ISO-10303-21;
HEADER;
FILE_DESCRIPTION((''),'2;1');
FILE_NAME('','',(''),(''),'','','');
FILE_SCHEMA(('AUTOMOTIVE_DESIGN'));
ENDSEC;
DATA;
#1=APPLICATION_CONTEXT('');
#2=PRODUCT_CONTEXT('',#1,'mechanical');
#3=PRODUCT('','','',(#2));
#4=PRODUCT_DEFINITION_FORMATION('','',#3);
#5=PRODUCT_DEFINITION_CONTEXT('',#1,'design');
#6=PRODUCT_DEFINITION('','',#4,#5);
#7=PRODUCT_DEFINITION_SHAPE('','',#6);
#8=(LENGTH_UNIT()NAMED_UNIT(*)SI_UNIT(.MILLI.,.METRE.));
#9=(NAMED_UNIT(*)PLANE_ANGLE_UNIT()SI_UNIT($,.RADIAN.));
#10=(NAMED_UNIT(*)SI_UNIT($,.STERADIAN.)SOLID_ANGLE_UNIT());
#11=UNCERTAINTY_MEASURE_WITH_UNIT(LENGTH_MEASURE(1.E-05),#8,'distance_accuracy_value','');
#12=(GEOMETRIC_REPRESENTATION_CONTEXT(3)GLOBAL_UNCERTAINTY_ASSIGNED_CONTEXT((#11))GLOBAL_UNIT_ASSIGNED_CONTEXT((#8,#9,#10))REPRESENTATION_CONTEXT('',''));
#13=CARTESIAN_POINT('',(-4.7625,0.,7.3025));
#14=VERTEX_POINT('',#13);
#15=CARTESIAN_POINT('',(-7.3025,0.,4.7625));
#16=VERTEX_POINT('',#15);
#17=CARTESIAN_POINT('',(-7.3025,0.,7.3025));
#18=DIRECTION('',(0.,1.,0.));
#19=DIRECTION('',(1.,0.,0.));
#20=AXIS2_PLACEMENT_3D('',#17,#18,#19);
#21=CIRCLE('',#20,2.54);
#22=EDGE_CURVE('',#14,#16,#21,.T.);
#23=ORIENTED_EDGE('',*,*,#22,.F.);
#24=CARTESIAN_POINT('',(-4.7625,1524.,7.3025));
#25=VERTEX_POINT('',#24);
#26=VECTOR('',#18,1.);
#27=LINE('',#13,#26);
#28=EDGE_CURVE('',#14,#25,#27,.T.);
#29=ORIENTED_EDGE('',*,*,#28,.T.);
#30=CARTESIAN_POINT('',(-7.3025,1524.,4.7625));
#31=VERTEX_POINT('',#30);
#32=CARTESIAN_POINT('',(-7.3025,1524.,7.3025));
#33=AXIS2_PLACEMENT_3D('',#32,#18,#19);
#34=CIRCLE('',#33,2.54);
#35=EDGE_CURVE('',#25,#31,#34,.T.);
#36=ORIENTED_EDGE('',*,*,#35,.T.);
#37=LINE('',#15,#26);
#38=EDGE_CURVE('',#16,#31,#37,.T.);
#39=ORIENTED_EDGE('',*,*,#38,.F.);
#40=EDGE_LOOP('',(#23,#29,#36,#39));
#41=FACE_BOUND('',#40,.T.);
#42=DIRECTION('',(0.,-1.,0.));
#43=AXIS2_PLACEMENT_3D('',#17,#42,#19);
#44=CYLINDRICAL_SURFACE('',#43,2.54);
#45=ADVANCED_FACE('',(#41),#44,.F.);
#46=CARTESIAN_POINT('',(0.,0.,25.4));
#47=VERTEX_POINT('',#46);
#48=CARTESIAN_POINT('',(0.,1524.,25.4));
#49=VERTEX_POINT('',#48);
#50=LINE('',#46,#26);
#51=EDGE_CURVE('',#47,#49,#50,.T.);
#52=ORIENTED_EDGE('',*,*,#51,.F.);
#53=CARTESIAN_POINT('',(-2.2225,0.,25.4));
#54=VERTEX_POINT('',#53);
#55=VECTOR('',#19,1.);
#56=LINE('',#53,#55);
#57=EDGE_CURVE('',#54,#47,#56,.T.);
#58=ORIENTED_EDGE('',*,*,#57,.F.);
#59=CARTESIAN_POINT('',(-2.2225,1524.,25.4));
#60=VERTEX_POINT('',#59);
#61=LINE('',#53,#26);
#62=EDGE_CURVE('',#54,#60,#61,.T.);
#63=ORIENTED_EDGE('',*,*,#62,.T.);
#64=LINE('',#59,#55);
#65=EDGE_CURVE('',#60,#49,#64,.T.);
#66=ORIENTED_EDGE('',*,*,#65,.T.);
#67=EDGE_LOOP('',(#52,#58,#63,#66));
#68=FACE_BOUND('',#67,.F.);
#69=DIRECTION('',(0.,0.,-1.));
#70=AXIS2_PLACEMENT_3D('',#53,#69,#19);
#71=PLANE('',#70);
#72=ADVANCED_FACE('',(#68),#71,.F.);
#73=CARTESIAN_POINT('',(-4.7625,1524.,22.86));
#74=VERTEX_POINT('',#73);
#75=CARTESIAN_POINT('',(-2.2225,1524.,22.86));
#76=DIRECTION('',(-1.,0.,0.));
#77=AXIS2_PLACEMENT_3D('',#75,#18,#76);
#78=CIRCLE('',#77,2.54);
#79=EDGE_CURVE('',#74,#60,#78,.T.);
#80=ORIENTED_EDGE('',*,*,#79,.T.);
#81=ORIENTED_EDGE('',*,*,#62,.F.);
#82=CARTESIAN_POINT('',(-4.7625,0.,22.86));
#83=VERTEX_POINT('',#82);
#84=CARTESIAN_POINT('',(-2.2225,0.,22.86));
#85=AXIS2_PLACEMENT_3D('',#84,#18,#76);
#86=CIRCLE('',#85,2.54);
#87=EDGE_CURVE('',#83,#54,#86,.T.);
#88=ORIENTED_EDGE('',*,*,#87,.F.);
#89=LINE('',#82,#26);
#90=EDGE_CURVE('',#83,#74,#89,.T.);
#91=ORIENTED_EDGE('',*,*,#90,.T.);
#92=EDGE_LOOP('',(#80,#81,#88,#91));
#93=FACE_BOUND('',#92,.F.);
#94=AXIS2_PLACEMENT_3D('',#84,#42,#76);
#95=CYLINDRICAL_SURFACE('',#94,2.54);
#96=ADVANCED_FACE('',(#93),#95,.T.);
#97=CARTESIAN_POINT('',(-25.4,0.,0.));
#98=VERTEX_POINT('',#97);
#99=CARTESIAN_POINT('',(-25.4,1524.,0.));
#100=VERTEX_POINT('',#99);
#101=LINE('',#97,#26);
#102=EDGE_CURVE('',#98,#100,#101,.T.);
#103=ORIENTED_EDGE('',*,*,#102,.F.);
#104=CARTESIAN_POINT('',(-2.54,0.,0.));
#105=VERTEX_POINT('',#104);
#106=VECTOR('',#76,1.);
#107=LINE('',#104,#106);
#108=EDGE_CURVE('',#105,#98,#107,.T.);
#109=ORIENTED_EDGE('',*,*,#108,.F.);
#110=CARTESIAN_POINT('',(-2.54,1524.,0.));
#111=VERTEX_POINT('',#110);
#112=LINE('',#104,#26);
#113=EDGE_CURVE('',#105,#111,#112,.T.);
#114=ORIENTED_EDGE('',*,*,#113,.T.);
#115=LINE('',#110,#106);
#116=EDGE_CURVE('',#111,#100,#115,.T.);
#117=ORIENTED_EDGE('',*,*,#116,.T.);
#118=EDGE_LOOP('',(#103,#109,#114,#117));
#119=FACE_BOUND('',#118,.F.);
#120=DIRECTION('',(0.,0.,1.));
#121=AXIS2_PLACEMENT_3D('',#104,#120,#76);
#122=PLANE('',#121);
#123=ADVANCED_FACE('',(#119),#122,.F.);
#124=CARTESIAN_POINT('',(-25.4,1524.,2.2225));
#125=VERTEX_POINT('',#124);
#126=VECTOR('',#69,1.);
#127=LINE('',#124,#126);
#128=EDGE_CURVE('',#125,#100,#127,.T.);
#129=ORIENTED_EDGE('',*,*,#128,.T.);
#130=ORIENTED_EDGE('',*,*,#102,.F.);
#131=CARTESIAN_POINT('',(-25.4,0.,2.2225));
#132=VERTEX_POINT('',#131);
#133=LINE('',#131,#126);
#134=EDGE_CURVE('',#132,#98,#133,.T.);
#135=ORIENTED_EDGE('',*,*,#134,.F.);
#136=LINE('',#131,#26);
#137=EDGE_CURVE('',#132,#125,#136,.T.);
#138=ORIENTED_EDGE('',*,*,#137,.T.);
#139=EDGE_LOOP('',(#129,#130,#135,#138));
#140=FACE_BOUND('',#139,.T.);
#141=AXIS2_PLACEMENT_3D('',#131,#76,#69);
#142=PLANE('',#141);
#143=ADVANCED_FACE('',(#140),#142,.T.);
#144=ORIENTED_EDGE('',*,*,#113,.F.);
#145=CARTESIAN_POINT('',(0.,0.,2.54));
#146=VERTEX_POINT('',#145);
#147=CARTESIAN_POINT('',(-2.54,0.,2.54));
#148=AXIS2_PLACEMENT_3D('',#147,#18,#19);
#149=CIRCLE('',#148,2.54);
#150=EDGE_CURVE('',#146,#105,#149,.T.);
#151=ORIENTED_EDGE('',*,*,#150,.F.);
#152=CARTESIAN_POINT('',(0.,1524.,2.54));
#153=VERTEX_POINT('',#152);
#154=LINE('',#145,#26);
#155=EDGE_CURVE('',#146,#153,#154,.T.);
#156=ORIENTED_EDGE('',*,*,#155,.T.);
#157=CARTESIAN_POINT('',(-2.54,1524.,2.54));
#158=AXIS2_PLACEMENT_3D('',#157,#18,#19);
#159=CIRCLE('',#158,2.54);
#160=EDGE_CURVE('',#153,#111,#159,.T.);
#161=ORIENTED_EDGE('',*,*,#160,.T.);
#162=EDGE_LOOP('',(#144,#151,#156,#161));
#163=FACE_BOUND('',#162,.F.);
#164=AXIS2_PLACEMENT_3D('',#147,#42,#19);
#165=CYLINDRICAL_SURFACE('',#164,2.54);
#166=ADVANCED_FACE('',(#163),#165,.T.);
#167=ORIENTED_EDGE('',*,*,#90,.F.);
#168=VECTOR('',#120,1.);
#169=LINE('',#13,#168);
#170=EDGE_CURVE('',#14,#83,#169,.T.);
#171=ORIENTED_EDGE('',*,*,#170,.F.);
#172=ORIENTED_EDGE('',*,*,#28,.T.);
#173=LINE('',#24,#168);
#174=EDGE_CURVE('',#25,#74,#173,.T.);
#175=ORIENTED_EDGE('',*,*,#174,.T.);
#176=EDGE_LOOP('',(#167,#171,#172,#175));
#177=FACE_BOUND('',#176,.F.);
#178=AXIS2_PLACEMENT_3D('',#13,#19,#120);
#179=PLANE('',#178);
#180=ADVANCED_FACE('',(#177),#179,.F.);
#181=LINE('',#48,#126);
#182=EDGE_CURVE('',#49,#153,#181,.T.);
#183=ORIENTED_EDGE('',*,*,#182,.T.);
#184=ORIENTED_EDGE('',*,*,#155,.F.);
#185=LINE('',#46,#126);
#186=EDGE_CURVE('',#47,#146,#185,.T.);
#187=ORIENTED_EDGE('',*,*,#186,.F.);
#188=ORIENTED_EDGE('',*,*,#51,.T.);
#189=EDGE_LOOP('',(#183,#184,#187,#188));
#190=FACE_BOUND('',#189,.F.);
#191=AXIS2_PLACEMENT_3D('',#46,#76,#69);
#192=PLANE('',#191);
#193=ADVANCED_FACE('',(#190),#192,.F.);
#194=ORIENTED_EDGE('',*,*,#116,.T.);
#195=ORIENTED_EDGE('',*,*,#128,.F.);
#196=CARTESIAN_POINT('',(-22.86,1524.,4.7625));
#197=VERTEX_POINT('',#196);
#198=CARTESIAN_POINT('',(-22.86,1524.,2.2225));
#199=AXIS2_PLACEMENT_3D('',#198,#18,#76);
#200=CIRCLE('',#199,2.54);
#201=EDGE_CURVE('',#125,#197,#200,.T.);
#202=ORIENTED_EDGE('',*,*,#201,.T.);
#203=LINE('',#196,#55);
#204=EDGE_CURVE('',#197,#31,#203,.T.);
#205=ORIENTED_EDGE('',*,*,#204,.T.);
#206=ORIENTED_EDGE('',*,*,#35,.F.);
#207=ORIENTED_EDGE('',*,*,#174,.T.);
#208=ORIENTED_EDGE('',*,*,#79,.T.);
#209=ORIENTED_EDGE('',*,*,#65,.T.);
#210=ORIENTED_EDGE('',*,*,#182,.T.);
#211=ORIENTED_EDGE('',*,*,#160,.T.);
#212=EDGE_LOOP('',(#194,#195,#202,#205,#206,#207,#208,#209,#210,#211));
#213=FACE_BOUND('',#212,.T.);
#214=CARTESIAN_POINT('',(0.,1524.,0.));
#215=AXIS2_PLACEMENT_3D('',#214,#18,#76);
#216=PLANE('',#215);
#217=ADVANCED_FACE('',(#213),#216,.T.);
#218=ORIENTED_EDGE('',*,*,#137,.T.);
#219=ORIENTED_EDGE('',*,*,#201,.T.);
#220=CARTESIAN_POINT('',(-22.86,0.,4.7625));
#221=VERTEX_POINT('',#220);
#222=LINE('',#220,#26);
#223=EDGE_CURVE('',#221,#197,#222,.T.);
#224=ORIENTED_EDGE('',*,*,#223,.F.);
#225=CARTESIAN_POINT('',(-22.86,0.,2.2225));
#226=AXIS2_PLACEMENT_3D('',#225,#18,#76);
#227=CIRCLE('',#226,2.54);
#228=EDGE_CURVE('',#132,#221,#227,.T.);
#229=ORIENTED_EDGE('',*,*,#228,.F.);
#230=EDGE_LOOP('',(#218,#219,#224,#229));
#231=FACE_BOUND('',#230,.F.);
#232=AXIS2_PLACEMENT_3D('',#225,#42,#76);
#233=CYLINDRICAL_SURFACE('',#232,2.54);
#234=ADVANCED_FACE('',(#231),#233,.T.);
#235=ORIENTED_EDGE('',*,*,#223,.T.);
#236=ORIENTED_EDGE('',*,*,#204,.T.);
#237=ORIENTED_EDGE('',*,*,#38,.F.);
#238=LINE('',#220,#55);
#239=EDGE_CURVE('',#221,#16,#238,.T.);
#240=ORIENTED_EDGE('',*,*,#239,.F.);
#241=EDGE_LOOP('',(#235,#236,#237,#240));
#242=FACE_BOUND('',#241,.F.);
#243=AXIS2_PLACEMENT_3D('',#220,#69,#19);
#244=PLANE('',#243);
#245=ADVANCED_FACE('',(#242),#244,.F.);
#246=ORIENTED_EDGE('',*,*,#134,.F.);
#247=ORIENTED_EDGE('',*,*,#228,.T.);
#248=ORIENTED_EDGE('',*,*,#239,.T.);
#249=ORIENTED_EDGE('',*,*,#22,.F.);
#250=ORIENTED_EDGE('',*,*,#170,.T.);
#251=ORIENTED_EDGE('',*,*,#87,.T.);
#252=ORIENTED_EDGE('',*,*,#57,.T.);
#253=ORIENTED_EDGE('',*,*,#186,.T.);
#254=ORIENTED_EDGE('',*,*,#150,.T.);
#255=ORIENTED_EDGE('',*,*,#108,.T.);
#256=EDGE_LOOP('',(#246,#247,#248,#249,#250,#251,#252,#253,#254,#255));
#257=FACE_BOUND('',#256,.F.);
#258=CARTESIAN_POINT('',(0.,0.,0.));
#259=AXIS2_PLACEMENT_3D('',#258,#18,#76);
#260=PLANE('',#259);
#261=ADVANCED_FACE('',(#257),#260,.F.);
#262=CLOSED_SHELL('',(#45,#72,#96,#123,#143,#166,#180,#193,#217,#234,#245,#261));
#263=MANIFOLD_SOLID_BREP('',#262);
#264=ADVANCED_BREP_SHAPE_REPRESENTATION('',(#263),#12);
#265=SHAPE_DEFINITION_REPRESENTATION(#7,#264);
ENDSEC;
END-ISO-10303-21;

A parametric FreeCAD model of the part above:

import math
import FreeCAD as App
import Part
import Sketcher
Q = App.Units.Quantity

doc = App.newDocument("Part")
body = doc.addObject("PartDesign::Body", "Body")

# Sketch on XZ plane
sketch1 = body.newObject("Sketcher::SketchObject", "Sketch")
sketch1.AttachmentSupport = (doc.getObject("XZ_Plane"), [""])
sketch1.MapMode = "FlatFace"
sketch1.addGeometry(Part.ArcOfCircle(Part.Circle(App.Vector(-2.5, 2.5, 0), App.Vector(0, 0, 1), 2.5), math.radians(-90), math.radians(0)), False)
sketch1.addGeometry(Part.LineSegment(App.Vector(-2.5, 0, 0), App.Vector(-25.4, 0, 0)), False)
sketch1.addGeometry(Part.LineSegment(App.Vector(-25.4, 0, 0), App.Vector(-25.4, 2.2, 0)), False)
sketch1.addGeometry(Part.ArcOfCircle(Part.Circle(App.Vector(-22.9, 2.2, 0), App.Vector(0, 0, 1), 2.5), math.radians(90), math.radians(180)), False)
sketch1.addGeometry(Part.LineSegment(App.Vector(-22.9, 4.8, 0), App.Vector(-7.3, 4.8, 0)), False)
sketch1.addGeometry(Part.ArcOfCircle(Part.Circle(App.Vector(-7.3, 7.3, 0), App.Vector(0, 0, 1), 2.5), math.radians(-90), math.radians(0)), False)
sketch1.addGeometry(Part.LineSegment(App.Vector(-4.8, 7.3, 0), App.Vector(-4.8, 22.9, 0)), False)
sketch1.addGeometry(Part.ArcOfCircle(Part.Circle(App.Vector(-2.2, 22.9, 0), App.Vector(0, 0, 1), 2.5), math.radians(90), math.radians(180)), False)
sketch1.addGeometry(Part.LineSegment(App.Vector(-2.2, 25.4, 0), App.Vector(0, 25.4, 0)), False)
sketch1.addGeometry(Part.LineSegment(App.Vector(0, 25.4, 0), App.Vector(0, 2.5, 0)), False)
sketch1.addConstraint(Sketcher.Constraint("Tangent", 0, 1, 1, 1))
sketch1.addConstraint(Sketcher.Constraint("Coincident", 1, 2, 2, 1))
sketch1.addConstraint(Sketcher.Constraint("Tangent", 2, 2, 3, 2))
sketch1.addConstraint(Sketcher.Constraint("Tangent", 3, 1, 4, 1))
sketch1.addConstraint(Sketcher.Constraint("Tangent", 4, 2, 5, 1))
sketch1.addConstraint(Sketcher.Constraint("Tangent", 5, 2, 6, 1))
sketch1.addConstraint(Sketcher.Constraint("Tangent", 6, 2, 7, 2))
sketch1.addConstraint(Sketcher.Constraint("Tangent", 7, 1, 8, 1))
sketch1.addConstraint(Sketcher.Constraint("Coincident", 8, 2, 9, 1))
sketch1.addConstraint(Sketcher.Constraint("Tangent", 9, 2, 0, 2))
sketch1.addConstraint(Sketcher.Constraint("Horizontal", 1))
sketch1.addConstraint(Sketcher.Constraint("Vertical", 2))
sketch1.addConstraint(Sketcher.Constraint("Horizontal", 4))
sketch1.addConstraint(Sketcher.Constraint("Vertical", 6))
sketch1.addConstraint(Sketcher.Constraint("Horizontal", 8))
sketch1.addConstraint(Sketcher.Constraint("Vertical", 9))
sketch1.addConstraint(Sketcher.Constraint("Equal", 0, 3))
sketch1.addConstraint(Sketcher.Constraint("Equal", 3, 5))
sketch1.addConstraint(Sketcher.Constraint("Equal", 5, 7))
sketch1.addConstraint(Sketcher.Constraint("PointOnObject", 0, 1, -1))
sketch1.addConstraint(Sketcher.Constraint("PointOnObject", 8, 2, -2))
sketch1.addConstraint(Sketcher.Constraint("Equal", 8, 2))
sketch1.addConstraint(Sketcher.Constraint("Equal", 4, 6))
sketch1.addConstraint(Sketcher.Constraint("Radius", 0, Q("0.1 in")))
sketch1.addConstraint(Sketcher.Constraint("DistanceX", 1, 2, -1, 1, Q("1 in")))
sketch1.addConstraint(Sketcher.Constraint("DistanceY", -1, 1, 3, 1, Q("0.1875 in")))
pad1 = body.newObject("PartDesign::Pad", "Pad")
pad1.Profile = sketch1
pad1.Length = Q("60 in")
pad1.Reversed = True

doc.recompute()
